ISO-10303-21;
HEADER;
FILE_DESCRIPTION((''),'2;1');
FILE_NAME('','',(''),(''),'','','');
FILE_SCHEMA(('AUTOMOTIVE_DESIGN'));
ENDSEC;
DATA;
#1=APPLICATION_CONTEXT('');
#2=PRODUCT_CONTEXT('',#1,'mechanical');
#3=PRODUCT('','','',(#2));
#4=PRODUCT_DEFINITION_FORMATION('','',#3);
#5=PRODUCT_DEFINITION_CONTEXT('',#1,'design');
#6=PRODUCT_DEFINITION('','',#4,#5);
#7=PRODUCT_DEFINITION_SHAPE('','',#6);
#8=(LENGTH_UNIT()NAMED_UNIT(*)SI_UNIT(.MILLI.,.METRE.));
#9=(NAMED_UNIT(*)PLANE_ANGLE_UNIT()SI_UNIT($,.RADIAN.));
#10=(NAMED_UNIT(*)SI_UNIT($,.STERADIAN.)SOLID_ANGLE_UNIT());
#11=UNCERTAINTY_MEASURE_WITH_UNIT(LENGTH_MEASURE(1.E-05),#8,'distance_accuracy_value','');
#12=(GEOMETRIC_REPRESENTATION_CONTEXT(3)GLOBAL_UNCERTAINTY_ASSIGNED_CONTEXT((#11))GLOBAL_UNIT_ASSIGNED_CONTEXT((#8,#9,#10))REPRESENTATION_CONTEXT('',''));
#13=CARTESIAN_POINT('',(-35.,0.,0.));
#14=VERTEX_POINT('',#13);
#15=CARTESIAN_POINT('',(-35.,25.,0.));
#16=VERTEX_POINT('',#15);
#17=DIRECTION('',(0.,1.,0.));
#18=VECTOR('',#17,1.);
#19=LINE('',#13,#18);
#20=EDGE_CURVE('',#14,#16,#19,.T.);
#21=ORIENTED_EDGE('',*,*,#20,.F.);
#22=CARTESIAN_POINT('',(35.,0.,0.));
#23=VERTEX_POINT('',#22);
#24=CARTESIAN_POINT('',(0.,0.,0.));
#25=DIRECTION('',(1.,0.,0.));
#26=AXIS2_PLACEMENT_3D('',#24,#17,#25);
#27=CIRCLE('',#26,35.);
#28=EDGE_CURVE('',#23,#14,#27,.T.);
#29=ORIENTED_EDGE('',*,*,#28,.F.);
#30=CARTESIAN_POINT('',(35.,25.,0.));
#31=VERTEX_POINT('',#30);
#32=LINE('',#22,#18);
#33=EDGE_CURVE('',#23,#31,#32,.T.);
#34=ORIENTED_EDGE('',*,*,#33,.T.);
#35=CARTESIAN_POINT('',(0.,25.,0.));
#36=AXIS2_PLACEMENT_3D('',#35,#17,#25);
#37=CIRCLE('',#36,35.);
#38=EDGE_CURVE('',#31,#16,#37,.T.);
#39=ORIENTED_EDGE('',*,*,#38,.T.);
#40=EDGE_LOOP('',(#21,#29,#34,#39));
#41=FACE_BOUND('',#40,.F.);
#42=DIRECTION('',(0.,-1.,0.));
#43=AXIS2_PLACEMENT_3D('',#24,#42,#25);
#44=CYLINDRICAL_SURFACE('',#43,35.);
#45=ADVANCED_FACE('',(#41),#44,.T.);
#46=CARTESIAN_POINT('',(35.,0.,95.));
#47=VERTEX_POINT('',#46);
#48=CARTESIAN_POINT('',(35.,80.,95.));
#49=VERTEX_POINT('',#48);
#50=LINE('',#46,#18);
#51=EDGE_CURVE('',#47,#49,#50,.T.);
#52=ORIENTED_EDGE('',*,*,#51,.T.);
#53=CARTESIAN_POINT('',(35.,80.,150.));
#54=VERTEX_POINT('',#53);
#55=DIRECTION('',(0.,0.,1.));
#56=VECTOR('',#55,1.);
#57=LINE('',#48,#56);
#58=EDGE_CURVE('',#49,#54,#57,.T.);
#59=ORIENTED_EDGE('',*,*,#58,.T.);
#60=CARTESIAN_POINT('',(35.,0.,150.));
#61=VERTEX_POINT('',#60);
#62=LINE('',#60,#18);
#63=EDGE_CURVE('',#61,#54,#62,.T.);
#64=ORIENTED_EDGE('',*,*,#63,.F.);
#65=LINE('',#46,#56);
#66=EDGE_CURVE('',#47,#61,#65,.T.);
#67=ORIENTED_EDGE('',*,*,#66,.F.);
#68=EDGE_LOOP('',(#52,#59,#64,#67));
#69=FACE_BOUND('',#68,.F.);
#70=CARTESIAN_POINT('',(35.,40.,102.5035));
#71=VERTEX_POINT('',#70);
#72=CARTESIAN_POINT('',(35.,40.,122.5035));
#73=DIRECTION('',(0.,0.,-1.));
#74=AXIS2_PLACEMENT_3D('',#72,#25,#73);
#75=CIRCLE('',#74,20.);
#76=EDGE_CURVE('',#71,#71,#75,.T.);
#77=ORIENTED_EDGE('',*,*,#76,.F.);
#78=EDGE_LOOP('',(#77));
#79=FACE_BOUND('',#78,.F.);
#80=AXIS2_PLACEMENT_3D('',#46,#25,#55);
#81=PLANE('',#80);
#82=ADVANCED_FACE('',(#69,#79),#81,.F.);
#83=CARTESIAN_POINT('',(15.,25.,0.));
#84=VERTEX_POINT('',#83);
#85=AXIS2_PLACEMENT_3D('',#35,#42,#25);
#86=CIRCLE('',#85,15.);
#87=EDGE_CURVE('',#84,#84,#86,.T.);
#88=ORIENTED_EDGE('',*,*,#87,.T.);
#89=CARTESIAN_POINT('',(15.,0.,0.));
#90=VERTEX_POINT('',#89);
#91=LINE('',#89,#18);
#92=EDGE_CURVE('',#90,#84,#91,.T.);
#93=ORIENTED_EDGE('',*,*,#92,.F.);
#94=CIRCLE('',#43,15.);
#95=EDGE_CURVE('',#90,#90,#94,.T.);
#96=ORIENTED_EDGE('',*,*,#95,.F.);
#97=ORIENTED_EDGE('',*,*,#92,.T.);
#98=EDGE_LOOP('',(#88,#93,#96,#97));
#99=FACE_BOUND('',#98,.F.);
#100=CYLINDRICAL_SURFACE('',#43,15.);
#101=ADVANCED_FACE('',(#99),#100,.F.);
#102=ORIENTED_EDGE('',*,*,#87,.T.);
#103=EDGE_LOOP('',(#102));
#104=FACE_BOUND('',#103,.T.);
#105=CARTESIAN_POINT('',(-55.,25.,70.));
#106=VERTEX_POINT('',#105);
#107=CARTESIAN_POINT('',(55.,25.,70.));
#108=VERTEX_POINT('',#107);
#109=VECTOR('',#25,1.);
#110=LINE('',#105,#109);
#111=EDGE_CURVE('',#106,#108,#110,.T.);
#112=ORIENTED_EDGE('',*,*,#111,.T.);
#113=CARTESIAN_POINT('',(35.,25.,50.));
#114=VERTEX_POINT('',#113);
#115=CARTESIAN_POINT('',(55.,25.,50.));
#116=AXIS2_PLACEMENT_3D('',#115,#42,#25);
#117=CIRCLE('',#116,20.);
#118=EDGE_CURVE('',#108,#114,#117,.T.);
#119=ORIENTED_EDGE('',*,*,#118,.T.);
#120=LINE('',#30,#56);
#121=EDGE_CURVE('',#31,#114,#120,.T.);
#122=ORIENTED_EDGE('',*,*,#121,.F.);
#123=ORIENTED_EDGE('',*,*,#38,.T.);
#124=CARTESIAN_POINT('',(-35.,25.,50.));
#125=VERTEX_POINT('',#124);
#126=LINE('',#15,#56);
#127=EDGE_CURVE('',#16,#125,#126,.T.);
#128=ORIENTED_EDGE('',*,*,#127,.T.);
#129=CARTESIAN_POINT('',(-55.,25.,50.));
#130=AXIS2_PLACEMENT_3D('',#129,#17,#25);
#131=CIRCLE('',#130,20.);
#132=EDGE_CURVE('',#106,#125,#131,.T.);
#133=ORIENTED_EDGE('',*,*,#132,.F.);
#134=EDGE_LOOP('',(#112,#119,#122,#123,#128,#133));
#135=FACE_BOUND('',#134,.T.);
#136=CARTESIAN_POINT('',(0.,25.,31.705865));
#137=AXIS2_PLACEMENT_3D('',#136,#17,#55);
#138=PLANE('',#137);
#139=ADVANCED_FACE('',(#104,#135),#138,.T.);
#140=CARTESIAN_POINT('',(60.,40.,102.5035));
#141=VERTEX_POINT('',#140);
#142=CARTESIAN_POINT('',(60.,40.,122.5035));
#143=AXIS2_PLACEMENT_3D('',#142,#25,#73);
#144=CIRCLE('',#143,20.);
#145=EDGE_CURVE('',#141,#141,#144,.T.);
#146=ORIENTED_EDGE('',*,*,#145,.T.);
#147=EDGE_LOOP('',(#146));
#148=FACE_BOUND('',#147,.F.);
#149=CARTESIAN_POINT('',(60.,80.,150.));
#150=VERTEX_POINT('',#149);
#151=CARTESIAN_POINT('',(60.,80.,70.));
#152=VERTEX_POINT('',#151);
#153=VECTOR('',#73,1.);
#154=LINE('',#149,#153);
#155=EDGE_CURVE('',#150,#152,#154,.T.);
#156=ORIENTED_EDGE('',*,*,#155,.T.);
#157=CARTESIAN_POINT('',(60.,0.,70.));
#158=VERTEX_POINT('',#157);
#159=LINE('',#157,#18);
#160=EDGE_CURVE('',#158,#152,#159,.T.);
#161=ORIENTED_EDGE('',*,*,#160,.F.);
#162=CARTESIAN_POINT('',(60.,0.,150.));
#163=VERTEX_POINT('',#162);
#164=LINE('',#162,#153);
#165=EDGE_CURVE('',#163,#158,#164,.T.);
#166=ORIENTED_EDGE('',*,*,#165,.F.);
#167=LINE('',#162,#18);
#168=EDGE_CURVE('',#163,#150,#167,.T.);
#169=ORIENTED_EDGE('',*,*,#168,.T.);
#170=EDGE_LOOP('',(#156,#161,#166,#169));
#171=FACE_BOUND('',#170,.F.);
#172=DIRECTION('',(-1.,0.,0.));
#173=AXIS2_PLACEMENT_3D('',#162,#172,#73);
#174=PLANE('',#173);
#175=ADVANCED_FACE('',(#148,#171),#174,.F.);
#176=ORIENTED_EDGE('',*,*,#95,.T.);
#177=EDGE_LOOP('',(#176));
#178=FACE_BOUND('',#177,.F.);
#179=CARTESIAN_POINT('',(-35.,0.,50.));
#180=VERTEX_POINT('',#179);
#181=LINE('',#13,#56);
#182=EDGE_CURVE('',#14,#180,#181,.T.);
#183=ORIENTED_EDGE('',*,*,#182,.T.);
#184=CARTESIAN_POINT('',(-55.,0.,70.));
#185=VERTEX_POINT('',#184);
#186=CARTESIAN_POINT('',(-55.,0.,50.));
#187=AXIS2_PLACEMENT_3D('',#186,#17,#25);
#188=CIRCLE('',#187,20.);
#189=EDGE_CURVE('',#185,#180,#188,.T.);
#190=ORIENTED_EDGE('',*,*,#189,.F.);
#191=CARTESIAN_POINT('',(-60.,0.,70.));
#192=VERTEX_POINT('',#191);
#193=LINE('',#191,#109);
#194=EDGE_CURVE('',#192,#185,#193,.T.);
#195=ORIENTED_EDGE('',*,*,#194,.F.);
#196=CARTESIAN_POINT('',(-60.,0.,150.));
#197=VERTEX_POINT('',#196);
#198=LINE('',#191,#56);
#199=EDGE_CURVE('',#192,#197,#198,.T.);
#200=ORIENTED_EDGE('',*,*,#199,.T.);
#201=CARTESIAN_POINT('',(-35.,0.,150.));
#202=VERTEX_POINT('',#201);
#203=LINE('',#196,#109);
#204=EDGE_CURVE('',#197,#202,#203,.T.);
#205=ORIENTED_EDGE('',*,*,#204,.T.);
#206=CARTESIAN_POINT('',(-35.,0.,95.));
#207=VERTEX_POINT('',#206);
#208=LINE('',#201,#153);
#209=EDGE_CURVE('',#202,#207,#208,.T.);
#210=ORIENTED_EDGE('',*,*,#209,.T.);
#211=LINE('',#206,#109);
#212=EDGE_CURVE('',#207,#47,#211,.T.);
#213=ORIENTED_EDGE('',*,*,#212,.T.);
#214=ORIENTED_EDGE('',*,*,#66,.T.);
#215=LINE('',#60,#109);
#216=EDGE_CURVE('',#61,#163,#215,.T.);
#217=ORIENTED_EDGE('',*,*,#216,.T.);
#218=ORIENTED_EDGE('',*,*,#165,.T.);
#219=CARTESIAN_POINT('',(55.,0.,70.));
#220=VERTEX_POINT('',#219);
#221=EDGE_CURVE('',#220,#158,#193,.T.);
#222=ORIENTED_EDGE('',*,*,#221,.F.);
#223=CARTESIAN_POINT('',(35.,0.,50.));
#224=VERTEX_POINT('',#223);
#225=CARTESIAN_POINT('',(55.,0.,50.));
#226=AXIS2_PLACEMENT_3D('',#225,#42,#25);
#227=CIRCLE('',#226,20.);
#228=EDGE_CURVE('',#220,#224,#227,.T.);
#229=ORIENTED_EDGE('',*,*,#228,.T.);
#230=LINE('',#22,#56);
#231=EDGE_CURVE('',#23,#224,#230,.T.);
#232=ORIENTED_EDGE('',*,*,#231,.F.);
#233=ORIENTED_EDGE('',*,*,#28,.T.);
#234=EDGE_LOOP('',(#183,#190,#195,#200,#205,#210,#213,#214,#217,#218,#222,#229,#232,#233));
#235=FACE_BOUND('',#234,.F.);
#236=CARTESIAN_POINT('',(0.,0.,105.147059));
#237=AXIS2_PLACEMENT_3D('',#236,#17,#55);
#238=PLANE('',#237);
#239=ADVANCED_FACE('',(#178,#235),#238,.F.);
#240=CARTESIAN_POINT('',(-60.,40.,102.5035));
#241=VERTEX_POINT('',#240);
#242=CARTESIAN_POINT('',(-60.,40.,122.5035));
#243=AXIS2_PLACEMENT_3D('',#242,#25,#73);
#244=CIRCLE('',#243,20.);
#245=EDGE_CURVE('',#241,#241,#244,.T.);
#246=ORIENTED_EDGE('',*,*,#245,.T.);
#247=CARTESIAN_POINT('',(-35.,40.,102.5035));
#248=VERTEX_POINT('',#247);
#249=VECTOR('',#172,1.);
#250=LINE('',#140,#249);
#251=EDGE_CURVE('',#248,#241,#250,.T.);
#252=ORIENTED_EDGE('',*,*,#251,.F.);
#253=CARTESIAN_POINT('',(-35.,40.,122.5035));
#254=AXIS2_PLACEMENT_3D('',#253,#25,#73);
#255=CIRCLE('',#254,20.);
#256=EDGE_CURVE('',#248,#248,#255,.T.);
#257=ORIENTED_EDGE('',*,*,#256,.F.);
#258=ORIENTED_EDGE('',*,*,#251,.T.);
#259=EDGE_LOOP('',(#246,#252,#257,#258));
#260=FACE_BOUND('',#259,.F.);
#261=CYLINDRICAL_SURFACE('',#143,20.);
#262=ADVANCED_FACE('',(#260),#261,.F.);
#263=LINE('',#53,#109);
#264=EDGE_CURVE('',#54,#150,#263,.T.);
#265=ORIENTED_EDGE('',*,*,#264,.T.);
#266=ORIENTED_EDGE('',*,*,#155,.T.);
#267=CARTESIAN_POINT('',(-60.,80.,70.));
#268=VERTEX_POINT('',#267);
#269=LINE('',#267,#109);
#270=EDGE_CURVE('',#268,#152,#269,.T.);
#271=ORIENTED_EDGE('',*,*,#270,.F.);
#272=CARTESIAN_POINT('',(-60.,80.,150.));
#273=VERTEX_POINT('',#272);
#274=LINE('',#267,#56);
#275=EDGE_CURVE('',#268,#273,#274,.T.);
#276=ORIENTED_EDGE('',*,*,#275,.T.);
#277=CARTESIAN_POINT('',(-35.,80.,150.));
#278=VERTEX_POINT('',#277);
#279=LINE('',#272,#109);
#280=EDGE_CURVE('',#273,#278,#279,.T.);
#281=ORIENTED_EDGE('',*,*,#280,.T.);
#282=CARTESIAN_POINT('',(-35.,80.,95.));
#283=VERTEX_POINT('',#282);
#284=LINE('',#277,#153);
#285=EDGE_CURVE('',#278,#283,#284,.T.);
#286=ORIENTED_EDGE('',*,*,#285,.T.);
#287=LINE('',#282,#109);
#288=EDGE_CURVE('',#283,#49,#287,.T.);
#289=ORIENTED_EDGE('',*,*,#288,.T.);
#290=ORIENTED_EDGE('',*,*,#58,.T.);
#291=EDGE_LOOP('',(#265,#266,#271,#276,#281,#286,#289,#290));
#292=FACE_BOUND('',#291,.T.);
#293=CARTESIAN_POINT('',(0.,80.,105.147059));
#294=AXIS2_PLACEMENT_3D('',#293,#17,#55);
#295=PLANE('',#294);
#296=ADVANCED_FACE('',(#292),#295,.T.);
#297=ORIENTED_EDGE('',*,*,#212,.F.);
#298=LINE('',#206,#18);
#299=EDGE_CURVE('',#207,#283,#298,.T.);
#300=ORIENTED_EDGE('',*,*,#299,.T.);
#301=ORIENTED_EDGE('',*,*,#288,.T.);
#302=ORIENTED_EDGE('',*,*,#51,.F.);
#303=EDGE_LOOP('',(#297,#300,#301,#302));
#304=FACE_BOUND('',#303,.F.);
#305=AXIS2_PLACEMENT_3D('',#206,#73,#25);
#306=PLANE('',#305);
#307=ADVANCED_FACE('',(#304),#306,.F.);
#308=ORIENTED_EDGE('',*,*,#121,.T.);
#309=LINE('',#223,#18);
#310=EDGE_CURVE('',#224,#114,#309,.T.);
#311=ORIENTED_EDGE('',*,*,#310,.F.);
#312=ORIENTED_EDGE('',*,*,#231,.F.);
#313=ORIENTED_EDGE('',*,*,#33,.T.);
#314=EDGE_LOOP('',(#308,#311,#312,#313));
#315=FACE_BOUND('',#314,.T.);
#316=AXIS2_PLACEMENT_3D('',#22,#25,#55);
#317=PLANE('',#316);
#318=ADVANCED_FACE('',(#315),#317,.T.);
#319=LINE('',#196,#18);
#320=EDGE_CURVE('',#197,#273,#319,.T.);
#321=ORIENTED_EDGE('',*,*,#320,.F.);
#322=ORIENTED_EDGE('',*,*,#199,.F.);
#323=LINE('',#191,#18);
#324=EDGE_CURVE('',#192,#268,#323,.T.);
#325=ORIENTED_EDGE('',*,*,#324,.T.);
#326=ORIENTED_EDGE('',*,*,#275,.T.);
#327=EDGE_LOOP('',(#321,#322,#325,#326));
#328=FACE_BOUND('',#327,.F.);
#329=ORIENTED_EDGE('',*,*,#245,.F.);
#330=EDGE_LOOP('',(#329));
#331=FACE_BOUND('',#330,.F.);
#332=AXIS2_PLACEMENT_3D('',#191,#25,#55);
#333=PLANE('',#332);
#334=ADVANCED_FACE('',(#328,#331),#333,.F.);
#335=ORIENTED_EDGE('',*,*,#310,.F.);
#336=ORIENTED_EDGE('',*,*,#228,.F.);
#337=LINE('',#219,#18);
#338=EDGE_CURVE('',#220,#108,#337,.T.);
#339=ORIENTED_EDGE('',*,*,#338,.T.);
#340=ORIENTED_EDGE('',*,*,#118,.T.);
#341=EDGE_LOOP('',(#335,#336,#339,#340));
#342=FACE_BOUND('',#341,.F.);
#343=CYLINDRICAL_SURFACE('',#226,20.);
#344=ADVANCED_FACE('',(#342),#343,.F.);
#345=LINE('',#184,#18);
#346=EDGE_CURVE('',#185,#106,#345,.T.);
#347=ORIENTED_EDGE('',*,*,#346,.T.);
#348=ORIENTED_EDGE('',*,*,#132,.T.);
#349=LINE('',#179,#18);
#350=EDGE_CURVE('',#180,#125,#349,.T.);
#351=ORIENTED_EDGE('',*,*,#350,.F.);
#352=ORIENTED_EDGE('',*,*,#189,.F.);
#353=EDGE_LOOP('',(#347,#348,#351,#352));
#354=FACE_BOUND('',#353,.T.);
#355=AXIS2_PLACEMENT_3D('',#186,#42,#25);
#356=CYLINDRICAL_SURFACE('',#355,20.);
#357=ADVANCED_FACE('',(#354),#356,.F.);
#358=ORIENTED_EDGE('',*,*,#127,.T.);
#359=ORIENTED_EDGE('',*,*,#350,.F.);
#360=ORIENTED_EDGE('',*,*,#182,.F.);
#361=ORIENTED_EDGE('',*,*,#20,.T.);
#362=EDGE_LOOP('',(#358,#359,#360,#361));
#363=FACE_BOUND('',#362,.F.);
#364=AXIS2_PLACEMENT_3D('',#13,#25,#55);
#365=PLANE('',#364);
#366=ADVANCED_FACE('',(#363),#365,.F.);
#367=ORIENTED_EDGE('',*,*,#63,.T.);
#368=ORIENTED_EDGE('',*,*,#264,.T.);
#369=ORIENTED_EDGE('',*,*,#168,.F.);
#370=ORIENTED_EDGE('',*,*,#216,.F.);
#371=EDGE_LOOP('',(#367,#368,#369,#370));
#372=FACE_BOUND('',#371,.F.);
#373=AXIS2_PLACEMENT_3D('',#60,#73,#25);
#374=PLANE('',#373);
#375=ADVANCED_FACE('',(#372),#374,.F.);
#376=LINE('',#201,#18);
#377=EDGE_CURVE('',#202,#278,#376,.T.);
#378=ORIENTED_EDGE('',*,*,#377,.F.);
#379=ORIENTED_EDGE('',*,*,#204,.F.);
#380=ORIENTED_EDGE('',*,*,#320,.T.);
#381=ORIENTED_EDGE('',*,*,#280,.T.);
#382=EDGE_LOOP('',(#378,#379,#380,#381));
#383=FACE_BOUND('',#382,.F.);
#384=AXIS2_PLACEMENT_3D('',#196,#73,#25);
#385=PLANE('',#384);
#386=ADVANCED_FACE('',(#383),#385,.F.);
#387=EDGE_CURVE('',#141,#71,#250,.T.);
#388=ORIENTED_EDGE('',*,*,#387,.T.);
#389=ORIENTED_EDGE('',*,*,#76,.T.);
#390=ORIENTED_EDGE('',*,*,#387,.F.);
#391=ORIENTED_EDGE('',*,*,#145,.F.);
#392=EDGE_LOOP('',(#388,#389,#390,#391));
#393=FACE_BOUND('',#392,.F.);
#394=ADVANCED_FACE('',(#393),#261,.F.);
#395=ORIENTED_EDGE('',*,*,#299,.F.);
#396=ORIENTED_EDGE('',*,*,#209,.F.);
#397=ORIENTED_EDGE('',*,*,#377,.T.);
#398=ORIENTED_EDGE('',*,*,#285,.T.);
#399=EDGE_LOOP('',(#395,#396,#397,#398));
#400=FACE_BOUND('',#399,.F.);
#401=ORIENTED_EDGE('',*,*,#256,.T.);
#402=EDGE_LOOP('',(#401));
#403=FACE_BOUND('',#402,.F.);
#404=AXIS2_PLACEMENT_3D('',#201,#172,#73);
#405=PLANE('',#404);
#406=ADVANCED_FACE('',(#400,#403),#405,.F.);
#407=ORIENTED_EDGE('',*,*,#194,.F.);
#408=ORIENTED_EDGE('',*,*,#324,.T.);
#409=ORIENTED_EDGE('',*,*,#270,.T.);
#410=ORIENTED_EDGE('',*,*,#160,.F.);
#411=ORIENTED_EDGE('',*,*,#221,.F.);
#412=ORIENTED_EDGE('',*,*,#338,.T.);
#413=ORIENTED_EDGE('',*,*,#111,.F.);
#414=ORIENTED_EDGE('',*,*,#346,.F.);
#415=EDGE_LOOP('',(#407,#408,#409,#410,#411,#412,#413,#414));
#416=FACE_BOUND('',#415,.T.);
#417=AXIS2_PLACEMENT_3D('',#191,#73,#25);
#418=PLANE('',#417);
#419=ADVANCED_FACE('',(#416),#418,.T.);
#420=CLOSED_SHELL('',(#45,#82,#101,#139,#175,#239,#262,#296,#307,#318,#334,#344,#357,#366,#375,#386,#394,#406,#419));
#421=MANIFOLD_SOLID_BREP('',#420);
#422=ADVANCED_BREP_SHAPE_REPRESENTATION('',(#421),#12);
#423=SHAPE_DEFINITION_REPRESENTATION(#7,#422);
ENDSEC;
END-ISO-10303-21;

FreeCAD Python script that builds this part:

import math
import FreeCAD as App
import Part
import Sketcher
from FreeCAD import Vector

doc = App.newDocument("Part")
body = doc.addObject("PartDesign::Body", "Body")

# Sketch on XZ plane
sketch1 = body.newObject("Sketcher::SketchObject", "Sketch")
sketch1.AttachmentSupport = (doc.getObject("XZ_Plane"), [""])
sketch1.MapMode = "FlatFace"
sketch1.addGeometry([
    Part.LineSegment(Vector(55, 70, 0), Vector(-55, 70, 0)),  # 0
    Part.ArcOfCircle(Part.Circle(Vector(-55, 50, 0), Vector(0, 0, 1), 20), math.radians(0), math.radians(90)),  # 1
    Part.LineSegment(Vector(-35, 50, 0), Vector(-35, 0, 0)),  # 2
    Part.ArcOfCircle(Part.Circle(Vector(0, 0, 0), Vector(0, 0, 1), 35), math.radians(180), math.radians(360)),  # 3
    Part.LineSegment(Vector(35, 0, 0), Vector(35, 50, 0)),  # 4
    Part.ArcOfCircle(Part.Circle(Vector(55, 50, 0), Vector(0, 0, 1), 20), math.radians(90), math.radians(180)),  # 5
], False)
sketch1.addConstraint([
    Sketcher.Constraint("Tangent", 0, 2, 1, 2),
    Sketcher.Constraint("Tangent", 1, 1, 2, 1),
    Sketcher.Constraint("Tangent", 2, 2, 3, 1),
    Sketcher.Constraint("Tangent", 3, 2, 4, 1),
    Sketcher.Constraint("Tangent", 4, 2, 5, 2),
    Sketcher.Constraint("Tangent", 5, 1, 0, 1),
    Sketcher.Constraint("Horizontal", 0),
    Sketcher.Constraint("Vertical", 2),
    Sketcher.Constraint("Vertical", 4),
    Sketcher.Constraint("Coincident", 3, 3, -1, 1),
    Sketcher.Constraint("Equal", 1, 5),
    Sketcher.Constraint("Radius", 1, 20.0),
    Sketcher.Constraint("Radius", 3, 35.0),
    Sketcher.Constraint("DistanceY", 2, 2, 2, 1, 50.0),
])
pad1 = body.newObject("PartDesign::Pad", "Pad")
pad1.Profile = sketch1
pad1.Length = 25
pad1.Reversed = True

# Sketch on XZ plane
sketch2 = body.newObject("Sketcher::SketchObject", "Sketch001")
sketch2.AttachmentSupport = (doc.getObject("XZ_Plane"), [""])
sketch2.MapMode = "FlatFace"
sketch2.addGeometry([
    Part.LineSegment(Vector(-35, 150, 0), Vector(-60, 150, 0)),  # 0
    Part.LineSegment(Vector(-60, 150, 0), Vector(-60, 70, 0)),  # 1
    Part.LineSegment(Vector(-60, 70, 0), Vector(60, 70, 0)),  # 2
    Part.LineSegment(Vector(60, 70, 0), Vector(60, 150, 0)),  # 3
    Part.LineSegment(Vector(60, 150, 0), Vector(35, 150, 0)),  # 4
    Part.LineSegment(Vector(35, 150, 0), Vector(35, 95, 0)),  # 5
    Part.LineSegment(Vector(35, 95, 0), Vector(-35, 95, 0)),  # 6
    Part.LineSegment(Vector(-35, 95, 0), Vector(-35, 150, 0)),  # 7
], False)
sketch2.addConstraint([
    Sketcher.Constraint("Coincident", 0, 2, 1, 1),
    Sketcher.Constraint("Coincident", 1, 2, 2, 1),
    Sketcher.Constraint("Coincident", 2, 2, 3, 1),
    Sketcher.Constraint("Coincident", 3, 2, 4, 1),
    Sketcher.Constraint("Coincident", 4, 2, 5, 1),
    Sketcher.Constraint("Coincident", 5, 2, 6, 1),
    Sketcher.Constraint("Coincident", 6, 2, 7, 1),
    Sketcher.Constraint("Coincident", 7, 2, 0, 1),
    Sketcher.Constraint("Horizontal", 0),
    Sketcher.Constraint("Vertical", 1),
    Sketcher.Constraint("Horizontal", 2),
    Sketcher.Constraint("Vertical", 3),
    Sketcher.Constraint("Horizontal", 4),
    Sketcher.Constraint("Vertical", 5),
    Sketcher.Constraint("Horizontal", 6),
    Sketcher.Constraint("Vertical", 7),
    Sketcher.Constraint("Symmetric", 0, 2, 3, 2, -2),
    Sketcher.Constraint("Equal", 0, 4),
    Sketcher.Constraint("DistanceX", 0, 2, 0, 1, 25.0),
    Sketcher.Constraint("DistanceX", 2, 1, 2, 2, 120.0),
    Sketcher.Constraint("DistanceY", 1, 2, 1, 1, 80.0),
    Sketcher.Constraint("DistanceY", 5, 2, 5, 1, 55.0),
    Sketcher.Constraint("DistanceY", -1, 1, 0, 2, 150.0),
])
pad2 = body.newObject("PartDesign::Pad", "Pad001")
pad2.Profile = sketch2
pad2.Length = 80
pad2.Reversed = True

# Sketch on XZ plane
sketch3 = body.newObject("Sketcher::SketchObject", "Sketch002")
sketch3.AttachmentSupport = (doc.getObject("XZ_Plane"), [""])
sketch3.MapMode = "FlatFace"
sketch3.addGeometry(Part.Circle(Vector(0, 0, 0), Vector(0, 0, 1), 15), False)
sketch3.addConstraint([
    Sketcher.Constraint("Coincident", 0, 3, -1, 1),
    Sketcher.Constraint("Diameter", 0, 30.0),
])
pocket1 = body.newObject("PartDesign::Pocket", "Pocket")
pocket1.Profile = sketch3
pocket1.Length = 25

# Sketch on YZ plane
sketch4 = body.newObject("Sketcher::SketchObject", "Sketch003")
sketch4.AttachmentSupport = (doc.getObject("YZ_Plane"), [""])
sketch4.MapMode = "FlatFace"
sketch4.AttachmentOffset = App.Placement(Vector(0, 0, 60), App.Rotation())
sketch4.addGeometry(Part.Circle(Vector(40, 123, 0), Vector(0, 0, 1), 20), False)
sketch4.addConstraint([
    Sketcher.Constraint("Diameter", 0, 40.0),
    Sketcher.Constraint("DistanceX", -1, 1, 0, 3, 40.0),
    Sketcher.Constraint("DistanceY", -1, 1, 0, 3, 122.5035),
])
pocket2 = body.newObject("PartDesign::Pocket", "Pocket001")
pocket2.Profile = sketch4
pocket2.Length = 120

doc.recompute()
